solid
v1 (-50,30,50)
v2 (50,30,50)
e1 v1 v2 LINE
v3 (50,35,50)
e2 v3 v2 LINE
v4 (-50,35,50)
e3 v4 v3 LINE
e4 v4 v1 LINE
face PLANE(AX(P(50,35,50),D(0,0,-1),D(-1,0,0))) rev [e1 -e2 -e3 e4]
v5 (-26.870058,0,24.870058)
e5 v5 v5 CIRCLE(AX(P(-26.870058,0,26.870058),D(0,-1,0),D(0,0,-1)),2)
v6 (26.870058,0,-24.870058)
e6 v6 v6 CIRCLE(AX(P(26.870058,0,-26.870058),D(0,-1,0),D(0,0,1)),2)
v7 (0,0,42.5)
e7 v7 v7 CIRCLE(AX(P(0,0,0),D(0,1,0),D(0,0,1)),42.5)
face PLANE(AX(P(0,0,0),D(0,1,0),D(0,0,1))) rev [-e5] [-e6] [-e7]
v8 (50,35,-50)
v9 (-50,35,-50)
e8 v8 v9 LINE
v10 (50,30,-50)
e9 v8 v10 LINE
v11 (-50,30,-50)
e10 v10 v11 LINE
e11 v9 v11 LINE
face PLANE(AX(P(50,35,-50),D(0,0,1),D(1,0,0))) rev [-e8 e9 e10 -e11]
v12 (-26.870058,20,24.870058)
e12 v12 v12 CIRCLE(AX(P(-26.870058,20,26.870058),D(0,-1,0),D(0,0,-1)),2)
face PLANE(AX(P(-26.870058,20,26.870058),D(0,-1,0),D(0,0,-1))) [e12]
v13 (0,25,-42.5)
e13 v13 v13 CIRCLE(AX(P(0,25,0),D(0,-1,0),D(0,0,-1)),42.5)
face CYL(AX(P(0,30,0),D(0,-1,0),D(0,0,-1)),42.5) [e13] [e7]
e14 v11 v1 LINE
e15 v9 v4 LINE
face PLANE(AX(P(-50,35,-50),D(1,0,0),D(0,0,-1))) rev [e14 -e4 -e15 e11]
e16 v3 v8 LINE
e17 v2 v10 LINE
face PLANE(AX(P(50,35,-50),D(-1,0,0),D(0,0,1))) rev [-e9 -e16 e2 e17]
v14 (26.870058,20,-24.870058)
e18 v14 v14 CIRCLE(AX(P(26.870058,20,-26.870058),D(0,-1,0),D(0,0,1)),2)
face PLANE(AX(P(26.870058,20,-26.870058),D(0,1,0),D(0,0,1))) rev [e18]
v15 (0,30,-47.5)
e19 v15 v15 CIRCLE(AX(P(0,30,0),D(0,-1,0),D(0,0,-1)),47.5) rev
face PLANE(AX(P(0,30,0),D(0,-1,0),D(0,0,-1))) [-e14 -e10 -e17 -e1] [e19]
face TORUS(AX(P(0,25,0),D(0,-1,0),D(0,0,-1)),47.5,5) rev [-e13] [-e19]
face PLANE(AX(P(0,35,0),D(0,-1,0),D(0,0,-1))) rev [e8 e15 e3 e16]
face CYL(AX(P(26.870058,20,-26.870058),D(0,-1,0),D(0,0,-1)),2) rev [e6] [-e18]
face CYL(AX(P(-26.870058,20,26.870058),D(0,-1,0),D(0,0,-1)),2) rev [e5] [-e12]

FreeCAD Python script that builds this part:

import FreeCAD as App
import Part
import Sketcher
from FreeCAD import Vector
Q = App.Units.Quantity


def edges_at(feature, points):
    """Names of the edges that pass closest to the given points."""
    edges = feature.Shape.Edges
    near = lambda p: min(range(len(edges)), key=lambda i: edges[i].distToShape(Part.Vertex(*p))[0])
    return sorted({f"Edge{near(p) + 1}" for p in points})

doc = App.newDocument("Part")
body = doc.addObject("PartDesign::Body", "Body")

sketch1 = body.newObject("Sketcher::SketchObject", "Sketch")
sketch1.AttachmentSupport = (doc.getObject("XZ_Plane"), [""])
sketch1.MapMode = "FlatFace"
sketch1.addGeometry(Part.Circle(Vector(0, 0, 0), Vector(0, 0, 1), 42), False)
sketch1.addConstraint([
    Sketcher.Constraint("Coincident", 0, 3, -1, 1),
    Sketcher.Constraint("Diameter", 0, Q("85 mm")),
])
pad1 = body.newObject("PartDesign::Pad", "Pad")
pad1.Profile = sketch1
pad1.Length = 30
pad1.Reversed = True

sketch2 = body.newObject("Sketcher::SketchObject", "Sketch001")
sketch2.AttachmentSupport = (doc.getObject("XZ_Plane"), [""])
sketch2.MapMode = "FlatFace"
sketch2.AttachmentOffset = App.Placement(Vector(0, 0, -30), App.Rotation())
sketch2.addGeometry([
    Part.LineSegment(Vector(-50, -50, 0), Vector(-50, 50, 0)),
    Part.LineSegment(Vector(-50, 50, 0), Vector(50, 50, 0)),
    Part.LineSegment(Vector(50, 50, 0), Vector(50, -50, 0)),
    Part.LineSegment(Vector(50, -50, 0), Vector(-50, -50, 0)),
], False)
sketch2.addConstraint([
    Sketcher.Constraint("Coincident", 0, 2, 1, 1),
    Sketcher.Constraint("Coincident", 1, 2, 2, 1),
    Sketcher.Constraint("Coincident", 2, 2, 3, 1),
    Sketcher.Constraint("Coincident", 3, 2, 0, 1),
    Sketcher.Constraint("Vertical", 0),
    Sketcher.Constraint("Horizontal", 1),
    Sketcher.Constraint("Vertical", 2),
    Sketcher.Constraint("Horizontal", 3),
    Sketcher.Constraint("Symmetric", 0, 2, 2, 2, -1, 1),
    Sketcher.Constraint("Equal", 3, 0),
    Sketcher.Constraint("DistanceX", 1, 1, 1, 2, Q("100 mm")),
])
pad2 = body.newObject("PartDesign::Pad", "Pad001")
pad2.Profile = sketch2
pad2.Length = 5
pad2.Reversed = True
doc.recompute()

fillet = body.newObject("PartDesign::Fillet", "Fillet")
fillet.Base = (pad2, edges_at(pad2, [(0, 30, -42.5)]))
fillet.Radius = 5

sketch3 = body.newObject("Sketcher::SketchObject", "Sketch002")
sketch3.AttachmentSupport = (doc.getObject("XZ_Plane"), [""])
sketch3.MapMode = "FlatFace"
sketch3.addGeometry([
    Part.Circle(Vector(-26.9, 26.9, 0), Vector(0, 0, 1), 2),
    Part.Circle(Vector(26.9, -26.9, 0), Vector(0, 0, 1), 2),
], False)
sketch3.addConstraint([
    Sketcher.Constraint("Equal", 0, 1),
    Sketcher.Constraint("Symmetric", 0, 3, 1, 3, -1, 1),
    Sketcher.Constraint("Diameter", 0, Q("4 mm")),
    Sketcher.Constraint("DistanceX", 0, 3, -1, 1, Q("26.870058 mm")),
    Sketcher.Constraint("DistanceY", -1, 1, 0, 3, Q("26.870058 mm")),
])
pocket1 = body.newObject("PartDesign::Pocket", "Pocket")
pocket1.Profile = sketch3
pocket1.Length = 20

doc.recompute()
